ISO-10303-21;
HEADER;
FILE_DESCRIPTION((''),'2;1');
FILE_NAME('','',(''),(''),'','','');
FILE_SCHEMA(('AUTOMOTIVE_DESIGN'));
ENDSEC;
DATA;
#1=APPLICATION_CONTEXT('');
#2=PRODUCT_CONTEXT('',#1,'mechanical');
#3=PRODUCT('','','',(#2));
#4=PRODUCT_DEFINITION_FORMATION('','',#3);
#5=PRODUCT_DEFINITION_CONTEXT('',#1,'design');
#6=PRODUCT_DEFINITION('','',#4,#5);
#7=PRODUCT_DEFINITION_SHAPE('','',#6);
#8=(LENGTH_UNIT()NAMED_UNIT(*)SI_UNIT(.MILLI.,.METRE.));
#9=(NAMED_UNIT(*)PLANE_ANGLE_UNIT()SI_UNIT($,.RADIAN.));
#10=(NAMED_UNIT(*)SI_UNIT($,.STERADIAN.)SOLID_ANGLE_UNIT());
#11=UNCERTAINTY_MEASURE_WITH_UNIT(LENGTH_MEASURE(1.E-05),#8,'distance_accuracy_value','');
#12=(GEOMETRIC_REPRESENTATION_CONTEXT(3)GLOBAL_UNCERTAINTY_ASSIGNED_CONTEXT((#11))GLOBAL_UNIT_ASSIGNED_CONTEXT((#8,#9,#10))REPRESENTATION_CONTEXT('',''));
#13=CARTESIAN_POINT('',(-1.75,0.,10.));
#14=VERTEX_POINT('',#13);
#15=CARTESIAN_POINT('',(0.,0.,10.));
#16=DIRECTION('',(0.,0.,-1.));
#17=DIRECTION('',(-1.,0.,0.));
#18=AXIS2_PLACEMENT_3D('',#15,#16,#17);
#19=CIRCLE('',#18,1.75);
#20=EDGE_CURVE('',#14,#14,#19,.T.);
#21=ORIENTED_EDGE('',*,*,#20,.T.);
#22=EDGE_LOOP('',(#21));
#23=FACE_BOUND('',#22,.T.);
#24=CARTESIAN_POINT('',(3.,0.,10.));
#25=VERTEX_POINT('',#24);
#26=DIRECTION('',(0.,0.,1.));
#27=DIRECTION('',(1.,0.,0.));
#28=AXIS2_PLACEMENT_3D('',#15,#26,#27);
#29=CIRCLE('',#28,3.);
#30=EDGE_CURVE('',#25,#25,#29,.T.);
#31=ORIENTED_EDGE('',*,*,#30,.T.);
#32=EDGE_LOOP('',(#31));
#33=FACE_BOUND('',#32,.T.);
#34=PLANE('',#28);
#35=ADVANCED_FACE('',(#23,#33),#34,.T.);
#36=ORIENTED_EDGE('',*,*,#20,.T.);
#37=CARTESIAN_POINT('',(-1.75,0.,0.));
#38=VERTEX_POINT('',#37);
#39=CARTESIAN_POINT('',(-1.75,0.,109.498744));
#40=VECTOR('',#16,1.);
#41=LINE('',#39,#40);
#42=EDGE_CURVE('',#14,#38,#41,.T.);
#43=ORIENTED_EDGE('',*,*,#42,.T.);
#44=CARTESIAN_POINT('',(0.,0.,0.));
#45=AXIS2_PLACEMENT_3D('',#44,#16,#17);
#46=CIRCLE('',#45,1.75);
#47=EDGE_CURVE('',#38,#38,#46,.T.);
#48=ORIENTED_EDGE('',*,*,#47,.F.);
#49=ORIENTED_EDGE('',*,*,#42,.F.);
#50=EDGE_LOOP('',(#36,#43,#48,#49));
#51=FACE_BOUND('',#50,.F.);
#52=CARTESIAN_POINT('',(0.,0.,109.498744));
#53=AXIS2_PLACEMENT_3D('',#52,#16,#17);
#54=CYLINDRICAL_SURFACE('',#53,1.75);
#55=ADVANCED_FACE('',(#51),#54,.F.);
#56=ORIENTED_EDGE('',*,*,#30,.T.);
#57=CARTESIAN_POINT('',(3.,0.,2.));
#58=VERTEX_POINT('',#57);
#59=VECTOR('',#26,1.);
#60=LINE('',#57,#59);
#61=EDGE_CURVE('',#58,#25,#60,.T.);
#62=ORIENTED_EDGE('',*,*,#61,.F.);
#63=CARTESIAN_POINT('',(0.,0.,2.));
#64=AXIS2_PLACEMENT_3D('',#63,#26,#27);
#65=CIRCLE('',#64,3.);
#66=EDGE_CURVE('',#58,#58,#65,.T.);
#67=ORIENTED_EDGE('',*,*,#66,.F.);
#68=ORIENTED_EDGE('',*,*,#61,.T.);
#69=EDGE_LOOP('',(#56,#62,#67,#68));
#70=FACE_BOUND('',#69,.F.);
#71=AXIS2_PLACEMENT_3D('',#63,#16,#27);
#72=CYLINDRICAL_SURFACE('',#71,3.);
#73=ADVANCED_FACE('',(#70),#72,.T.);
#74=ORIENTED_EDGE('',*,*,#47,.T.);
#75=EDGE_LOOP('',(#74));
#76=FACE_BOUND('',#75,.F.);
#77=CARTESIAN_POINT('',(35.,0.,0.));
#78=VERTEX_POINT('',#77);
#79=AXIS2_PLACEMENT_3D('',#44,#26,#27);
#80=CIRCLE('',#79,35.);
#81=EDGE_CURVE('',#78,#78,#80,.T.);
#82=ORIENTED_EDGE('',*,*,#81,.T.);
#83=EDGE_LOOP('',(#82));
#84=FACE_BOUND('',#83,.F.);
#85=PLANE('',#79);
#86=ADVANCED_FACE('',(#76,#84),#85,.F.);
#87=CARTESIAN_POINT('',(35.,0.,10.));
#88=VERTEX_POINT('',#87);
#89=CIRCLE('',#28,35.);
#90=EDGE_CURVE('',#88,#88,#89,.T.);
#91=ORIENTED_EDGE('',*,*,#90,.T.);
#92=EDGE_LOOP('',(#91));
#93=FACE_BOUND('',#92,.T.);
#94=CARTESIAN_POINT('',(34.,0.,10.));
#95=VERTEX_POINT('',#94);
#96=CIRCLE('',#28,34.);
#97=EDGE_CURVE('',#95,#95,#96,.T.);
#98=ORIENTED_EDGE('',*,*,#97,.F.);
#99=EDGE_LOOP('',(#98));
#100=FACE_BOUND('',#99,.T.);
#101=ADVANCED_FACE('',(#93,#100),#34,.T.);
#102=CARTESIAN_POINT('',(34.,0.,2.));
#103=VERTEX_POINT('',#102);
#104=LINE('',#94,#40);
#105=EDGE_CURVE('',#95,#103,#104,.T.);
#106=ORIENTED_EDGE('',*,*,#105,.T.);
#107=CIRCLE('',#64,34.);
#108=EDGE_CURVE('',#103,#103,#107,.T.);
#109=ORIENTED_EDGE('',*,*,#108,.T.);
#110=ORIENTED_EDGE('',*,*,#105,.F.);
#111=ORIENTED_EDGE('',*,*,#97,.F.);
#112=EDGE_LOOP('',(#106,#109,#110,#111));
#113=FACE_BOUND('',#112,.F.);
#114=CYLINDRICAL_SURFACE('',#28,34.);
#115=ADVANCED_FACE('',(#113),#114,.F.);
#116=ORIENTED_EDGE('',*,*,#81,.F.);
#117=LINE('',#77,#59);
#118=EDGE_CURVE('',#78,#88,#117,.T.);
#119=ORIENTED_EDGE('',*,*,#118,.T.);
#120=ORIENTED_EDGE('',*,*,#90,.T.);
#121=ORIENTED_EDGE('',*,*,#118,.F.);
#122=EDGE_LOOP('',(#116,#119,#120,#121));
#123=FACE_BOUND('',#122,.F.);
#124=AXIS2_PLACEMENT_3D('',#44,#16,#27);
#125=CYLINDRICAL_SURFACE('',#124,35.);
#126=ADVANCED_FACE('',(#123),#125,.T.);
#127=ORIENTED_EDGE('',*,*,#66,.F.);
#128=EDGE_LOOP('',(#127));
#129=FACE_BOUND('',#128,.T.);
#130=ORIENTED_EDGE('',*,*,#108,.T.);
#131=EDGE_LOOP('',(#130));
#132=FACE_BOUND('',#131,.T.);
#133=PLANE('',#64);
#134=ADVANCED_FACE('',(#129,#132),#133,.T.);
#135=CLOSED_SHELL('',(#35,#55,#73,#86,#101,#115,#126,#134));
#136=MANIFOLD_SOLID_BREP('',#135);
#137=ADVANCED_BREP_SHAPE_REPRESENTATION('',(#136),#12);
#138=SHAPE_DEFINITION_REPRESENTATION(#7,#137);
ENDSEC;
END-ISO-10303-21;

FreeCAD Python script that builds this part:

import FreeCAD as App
import Part
import Sketcher

doc = App.newDocument("Part")
body = doc.addObject("PartDesign::Body", "Body")

# Sketch on XY plane
sketch1 = body.newObject("Sketcher::SketchObject", "Sketch")
sketch1.AttachmentSupport = (doc.getObject("XY_Plane"), [""])
sketch1.MapMode = "FlatFace"
sketch1.addGeometry(Part.Circle(App.Vector(0, 0, 0), App.Vector(0, 0, 1), 35), False)
sketch1.addConstraint([
    Sketcher.Constraint("Coincident", 0, 3, -1, 1),
    Sketcher.Constraint("Diameter", 0, 70.0),
])
pad1 = body.newObject("PartDesign::Pad", "Pad")
pad1.Profile = sketch1
pad1.Length = 10

# Sketch on XY plane
sketch2 = body.newObject("Sketcher::SketchObject", "Sketch001")
sketch2.AttachmentSupport = (doc.getObject("XY_Plane"), [""])
sketch2.MapMode = "FlatFace"
sketch2.AttachmentOffset = App.Placement(App.Vector(0, 0, 10), App.Rotation())
sketch2.addGeometry(Part.Circle(App.Vector(0, 0, 0), App.Vector(0, 0, 1), 34), False)
sketch2.addConstraint([
    Sketcher.Constraint("Coincident", 0, 3, -1, 1),
    Sketcher.Constraint("Diameter", 0, 68.0),
])
pocket1 = body.newObject("PartDesign::Pocket", "Pocket")
pocket1.Profile = sketch2
pocket1.Length = 8

# Sketch on XY plane
sketch3 = body.newObject("Sketcher::SketchObject", "Sketch002")
sketch3.AttachmentSupport = (doc.getObject("XY_Plane"), [""])
sketch3.MapMode = "FlatFace"
sketch3.AttachmentOffset = App.Placement(App.Vector(0, 0, 2), App.Rotation())
sketch3.addGeometry(Part.Circle(App.Vector(0, 0, 0), App.Vector(0, 0, 1), 3), False)
sketch3.addConstraint([
    Sketcher.Constraint("Coincident", 0, 3, -1, 1),
    Sketcher.Constraint("Diameter", 0, 6.0),
])
pad2 = body.newObject("PartDesign::Pad", "Pad001")
pad2.Profile = sketch3
pad2.Length = 8

# Sketch on XY plane
sketch4 = body.newObject("Sketcher::SketchObject", "Sketch003")
sketch4.AttachmentSupport = (doc.getObject("XY_Plane"), [""])
sketch4.MapMode = "FlatFace"
sketch4.AttachmentOffset = App.Placement(App.Vector(0, 0, 10), App.Rotation())
sketch4.addGeometry(Part.Circle(App.Vector(0, 0, 0), App.Vector(0, 0, 1), 1.8), False)
sketch4.addConstraint([
    Sketcher.Constraint("Coincident", 0, 3, -1, 1),
    Sketcher.Constraint("Diameter", 0, 3.5),
])
doc.recompute()
hole = body.newObject("PartDesign::Hole", "Hole")
hole.Profile = sketch4
hole.ThreadType = "None"
hole.Diameter = 3.5
hole.DepthType = "ThroughAll"

doc.recompute()
